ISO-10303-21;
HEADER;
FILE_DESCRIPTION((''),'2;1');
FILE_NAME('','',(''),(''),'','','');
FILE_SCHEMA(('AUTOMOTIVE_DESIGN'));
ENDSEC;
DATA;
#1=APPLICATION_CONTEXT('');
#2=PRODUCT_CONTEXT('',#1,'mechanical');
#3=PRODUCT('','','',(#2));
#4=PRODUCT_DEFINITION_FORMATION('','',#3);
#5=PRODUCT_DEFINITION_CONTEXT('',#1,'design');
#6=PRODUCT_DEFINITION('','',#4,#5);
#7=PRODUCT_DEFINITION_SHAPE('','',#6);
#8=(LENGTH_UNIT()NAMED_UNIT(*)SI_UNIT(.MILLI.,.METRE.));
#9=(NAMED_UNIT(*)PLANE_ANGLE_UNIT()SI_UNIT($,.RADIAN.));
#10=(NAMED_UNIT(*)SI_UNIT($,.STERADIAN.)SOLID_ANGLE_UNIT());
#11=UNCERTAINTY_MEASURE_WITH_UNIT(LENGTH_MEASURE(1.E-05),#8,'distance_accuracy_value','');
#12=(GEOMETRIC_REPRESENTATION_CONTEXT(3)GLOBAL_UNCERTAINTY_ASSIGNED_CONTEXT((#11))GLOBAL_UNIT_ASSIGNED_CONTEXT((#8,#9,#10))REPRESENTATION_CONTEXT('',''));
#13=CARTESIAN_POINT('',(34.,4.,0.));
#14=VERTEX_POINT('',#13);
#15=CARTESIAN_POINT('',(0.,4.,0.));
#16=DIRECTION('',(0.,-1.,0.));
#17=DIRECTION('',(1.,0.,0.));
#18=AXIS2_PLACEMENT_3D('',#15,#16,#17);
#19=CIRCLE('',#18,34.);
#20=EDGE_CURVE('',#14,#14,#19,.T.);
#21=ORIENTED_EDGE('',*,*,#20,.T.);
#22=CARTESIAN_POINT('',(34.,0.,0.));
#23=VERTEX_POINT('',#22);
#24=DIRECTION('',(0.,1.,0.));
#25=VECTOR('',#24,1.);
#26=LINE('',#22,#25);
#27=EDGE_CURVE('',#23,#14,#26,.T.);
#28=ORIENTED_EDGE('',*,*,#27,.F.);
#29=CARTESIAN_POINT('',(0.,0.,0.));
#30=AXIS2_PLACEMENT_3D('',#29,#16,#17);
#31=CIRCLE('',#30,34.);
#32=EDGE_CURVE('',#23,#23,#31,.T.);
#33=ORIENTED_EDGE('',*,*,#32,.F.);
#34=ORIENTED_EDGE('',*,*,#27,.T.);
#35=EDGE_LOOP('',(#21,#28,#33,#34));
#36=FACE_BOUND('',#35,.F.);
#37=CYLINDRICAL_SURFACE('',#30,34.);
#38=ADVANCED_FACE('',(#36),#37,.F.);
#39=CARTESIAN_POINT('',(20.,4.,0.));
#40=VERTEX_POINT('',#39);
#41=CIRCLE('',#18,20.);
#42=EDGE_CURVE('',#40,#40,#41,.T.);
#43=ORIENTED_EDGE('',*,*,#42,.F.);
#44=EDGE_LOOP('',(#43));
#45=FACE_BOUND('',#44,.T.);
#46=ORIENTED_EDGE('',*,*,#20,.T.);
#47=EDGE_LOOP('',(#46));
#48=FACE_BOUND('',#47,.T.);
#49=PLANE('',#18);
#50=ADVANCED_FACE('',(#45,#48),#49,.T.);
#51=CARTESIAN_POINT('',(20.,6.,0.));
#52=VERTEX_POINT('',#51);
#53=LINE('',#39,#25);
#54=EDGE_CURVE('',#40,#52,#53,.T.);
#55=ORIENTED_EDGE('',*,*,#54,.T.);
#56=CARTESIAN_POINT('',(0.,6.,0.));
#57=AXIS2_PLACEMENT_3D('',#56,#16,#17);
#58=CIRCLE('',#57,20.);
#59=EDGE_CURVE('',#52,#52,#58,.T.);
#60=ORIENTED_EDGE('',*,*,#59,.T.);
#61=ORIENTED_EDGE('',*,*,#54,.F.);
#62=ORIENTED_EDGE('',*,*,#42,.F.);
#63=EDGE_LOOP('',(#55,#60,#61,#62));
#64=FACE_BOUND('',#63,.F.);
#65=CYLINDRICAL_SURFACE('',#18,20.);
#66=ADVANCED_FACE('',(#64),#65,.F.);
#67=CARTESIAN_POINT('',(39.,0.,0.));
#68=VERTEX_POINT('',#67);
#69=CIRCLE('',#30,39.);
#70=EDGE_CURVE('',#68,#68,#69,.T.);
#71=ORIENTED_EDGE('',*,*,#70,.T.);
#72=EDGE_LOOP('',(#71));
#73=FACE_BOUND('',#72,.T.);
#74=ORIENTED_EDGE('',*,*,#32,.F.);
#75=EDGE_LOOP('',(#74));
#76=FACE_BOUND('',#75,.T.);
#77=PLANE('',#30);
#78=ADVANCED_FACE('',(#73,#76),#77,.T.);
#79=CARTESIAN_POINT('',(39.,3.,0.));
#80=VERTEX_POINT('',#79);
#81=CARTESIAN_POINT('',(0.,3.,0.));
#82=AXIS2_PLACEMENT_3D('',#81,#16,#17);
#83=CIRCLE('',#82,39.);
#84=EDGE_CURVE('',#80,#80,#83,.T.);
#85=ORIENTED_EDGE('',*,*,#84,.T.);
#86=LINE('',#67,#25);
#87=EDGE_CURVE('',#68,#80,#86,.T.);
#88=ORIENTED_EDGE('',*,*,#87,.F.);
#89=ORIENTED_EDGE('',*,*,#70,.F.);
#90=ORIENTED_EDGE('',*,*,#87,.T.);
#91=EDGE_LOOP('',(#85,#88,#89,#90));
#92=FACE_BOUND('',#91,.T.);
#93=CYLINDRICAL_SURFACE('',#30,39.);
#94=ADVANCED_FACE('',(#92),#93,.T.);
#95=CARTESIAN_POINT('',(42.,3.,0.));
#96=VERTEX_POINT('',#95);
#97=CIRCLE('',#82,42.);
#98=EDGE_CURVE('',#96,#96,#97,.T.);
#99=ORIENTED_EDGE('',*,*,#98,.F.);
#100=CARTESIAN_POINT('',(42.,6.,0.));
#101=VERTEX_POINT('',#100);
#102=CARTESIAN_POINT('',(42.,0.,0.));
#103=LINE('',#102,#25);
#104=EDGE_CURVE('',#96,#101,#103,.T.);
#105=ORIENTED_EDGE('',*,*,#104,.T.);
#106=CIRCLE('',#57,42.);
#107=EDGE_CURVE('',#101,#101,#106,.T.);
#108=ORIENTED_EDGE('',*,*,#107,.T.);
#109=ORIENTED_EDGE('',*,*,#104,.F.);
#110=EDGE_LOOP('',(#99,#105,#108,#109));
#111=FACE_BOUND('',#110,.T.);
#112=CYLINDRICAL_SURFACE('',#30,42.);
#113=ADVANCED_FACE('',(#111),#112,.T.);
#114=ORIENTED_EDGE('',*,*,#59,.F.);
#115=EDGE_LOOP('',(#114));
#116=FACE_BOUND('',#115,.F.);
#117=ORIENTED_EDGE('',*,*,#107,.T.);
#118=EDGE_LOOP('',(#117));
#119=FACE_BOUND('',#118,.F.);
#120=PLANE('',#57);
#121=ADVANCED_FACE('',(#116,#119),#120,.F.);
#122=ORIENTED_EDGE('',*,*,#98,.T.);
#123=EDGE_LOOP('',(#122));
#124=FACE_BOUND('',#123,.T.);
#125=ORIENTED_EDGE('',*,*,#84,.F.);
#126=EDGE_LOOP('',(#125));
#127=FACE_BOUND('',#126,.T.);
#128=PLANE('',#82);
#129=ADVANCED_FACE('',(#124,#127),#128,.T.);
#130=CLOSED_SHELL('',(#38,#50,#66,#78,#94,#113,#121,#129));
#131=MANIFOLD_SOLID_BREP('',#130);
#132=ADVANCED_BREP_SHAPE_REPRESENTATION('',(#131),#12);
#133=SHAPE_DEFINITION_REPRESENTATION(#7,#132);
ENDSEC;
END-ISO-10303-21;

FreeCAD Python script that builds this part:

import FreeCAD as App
import Part
import Sketcher

V = App.Vector
Q = App.Units.Quantity

doc = App.newDocument("Part")
body = doc.addObject("PartDesign::Body", "Body")

# Sketch on XZ plane
sketch1 = body.newObject("Sketcher::SketchObject", "Sketch")
sketch1.AttachmentSupport = (doc.getObject("XZ_Plane"), [""])
sketch1.MapMode = "FlatFace"
sketch1.addGeometry(Part.Circle(V(0, 0, 0), V(0, 0, 1), 42), False)
sketch1.addConstraint([
    Sketcher.Constraint("Coincident", 0, 3, -1, 1),
    Sketcher.Constraint("Diameter", 0, Q("84 mm")),
])
pad1 = body.newObject("PartDesign::Pad", "Pad")
pad1.Profile = sketch1
pad1.Length = 6
pad1.Reversed = True

# Sketch on XZ plane
sketch2 = body.newObject("Sketcher::SketchObject", "Sketch001")
sketch2.AttachmentSupport = (doc.getObject("XZ_Plane"), [""])
sketch2.MapMode = "FlatFace"
sketch2.addGeometry(Part.Circle(V(0, 0, 0), V(0, 0, 1), 34), False)
sketch2.addConstraint([
    Sketcher.Constraint("Coincident", 0, 3, -1, 1),
    Sketcher.Constraint("Diameter", 0, Q("68 mm")),
])
pocket1 = body.newObject("PartDesign::Pocket", "Pocket")
pocket1.Profile = sketch2
pocket1.Length = 4

# Sketch on XZ plane
sketch3 = body.newObject("Sketcher::SketchObject", "Sketch002")
sketch3.AttachmentSupport = (doc.getObject("XZ_Plane"), [""])
sketch3.MapMode = "FlatFace"
sketch3.AttachmentOffset = App.Placement(V(0, 0, -4), App.Rotation())
sketch3.addGeometry(Part.Circle(V(0, 0, 0), V(0, 0, 1), 20), False)
sketch3.addConstraint([
    Sketcher.Constraint("Coincident", 0, 3, -1, 1),
    Sketcher.Constraint("Diameter", 0, Q("40 mm")),
])
pocket2 = body.newObject("PartDesign::Pocket", "Pocket001")
pocket2.Profile = sketch3
pocket2.Length = 2

# Sketch on XZ plane
sketch4 = body.newObject("Sketcher::SketchObject", "Sketch003")
sketch4.AttachmentSupport = (doc.getObject("XZ_Plane"), [""])
sketch4.MapMode = "FlatFace"
sketch4.addGeometry([
    Part.Circle(V(0, 0, 0), V(0, 0, 1), 42),
    Part.Circle(V(0, 0, 0), V(0, 0, 1), 39),
], False)
sketch4.addConstraint([
    Sketcher.Constraint("Coincident", 0, 3, -1, 1),
    Sketcher.Constraint("Coincident", 1, 3, -1, 1),
    Sketcher.Constraint("Diameter", 0, Q("84 mm")),
    Sketcher.Constraint("Diameter", 1, Q("78 mm")),
])
pocket3 = body.newObject("PartDesign::Pocket", "Pocket002")
pocket3.Profile = sketch4
pocket3.Length = 3

doc.recompute()
